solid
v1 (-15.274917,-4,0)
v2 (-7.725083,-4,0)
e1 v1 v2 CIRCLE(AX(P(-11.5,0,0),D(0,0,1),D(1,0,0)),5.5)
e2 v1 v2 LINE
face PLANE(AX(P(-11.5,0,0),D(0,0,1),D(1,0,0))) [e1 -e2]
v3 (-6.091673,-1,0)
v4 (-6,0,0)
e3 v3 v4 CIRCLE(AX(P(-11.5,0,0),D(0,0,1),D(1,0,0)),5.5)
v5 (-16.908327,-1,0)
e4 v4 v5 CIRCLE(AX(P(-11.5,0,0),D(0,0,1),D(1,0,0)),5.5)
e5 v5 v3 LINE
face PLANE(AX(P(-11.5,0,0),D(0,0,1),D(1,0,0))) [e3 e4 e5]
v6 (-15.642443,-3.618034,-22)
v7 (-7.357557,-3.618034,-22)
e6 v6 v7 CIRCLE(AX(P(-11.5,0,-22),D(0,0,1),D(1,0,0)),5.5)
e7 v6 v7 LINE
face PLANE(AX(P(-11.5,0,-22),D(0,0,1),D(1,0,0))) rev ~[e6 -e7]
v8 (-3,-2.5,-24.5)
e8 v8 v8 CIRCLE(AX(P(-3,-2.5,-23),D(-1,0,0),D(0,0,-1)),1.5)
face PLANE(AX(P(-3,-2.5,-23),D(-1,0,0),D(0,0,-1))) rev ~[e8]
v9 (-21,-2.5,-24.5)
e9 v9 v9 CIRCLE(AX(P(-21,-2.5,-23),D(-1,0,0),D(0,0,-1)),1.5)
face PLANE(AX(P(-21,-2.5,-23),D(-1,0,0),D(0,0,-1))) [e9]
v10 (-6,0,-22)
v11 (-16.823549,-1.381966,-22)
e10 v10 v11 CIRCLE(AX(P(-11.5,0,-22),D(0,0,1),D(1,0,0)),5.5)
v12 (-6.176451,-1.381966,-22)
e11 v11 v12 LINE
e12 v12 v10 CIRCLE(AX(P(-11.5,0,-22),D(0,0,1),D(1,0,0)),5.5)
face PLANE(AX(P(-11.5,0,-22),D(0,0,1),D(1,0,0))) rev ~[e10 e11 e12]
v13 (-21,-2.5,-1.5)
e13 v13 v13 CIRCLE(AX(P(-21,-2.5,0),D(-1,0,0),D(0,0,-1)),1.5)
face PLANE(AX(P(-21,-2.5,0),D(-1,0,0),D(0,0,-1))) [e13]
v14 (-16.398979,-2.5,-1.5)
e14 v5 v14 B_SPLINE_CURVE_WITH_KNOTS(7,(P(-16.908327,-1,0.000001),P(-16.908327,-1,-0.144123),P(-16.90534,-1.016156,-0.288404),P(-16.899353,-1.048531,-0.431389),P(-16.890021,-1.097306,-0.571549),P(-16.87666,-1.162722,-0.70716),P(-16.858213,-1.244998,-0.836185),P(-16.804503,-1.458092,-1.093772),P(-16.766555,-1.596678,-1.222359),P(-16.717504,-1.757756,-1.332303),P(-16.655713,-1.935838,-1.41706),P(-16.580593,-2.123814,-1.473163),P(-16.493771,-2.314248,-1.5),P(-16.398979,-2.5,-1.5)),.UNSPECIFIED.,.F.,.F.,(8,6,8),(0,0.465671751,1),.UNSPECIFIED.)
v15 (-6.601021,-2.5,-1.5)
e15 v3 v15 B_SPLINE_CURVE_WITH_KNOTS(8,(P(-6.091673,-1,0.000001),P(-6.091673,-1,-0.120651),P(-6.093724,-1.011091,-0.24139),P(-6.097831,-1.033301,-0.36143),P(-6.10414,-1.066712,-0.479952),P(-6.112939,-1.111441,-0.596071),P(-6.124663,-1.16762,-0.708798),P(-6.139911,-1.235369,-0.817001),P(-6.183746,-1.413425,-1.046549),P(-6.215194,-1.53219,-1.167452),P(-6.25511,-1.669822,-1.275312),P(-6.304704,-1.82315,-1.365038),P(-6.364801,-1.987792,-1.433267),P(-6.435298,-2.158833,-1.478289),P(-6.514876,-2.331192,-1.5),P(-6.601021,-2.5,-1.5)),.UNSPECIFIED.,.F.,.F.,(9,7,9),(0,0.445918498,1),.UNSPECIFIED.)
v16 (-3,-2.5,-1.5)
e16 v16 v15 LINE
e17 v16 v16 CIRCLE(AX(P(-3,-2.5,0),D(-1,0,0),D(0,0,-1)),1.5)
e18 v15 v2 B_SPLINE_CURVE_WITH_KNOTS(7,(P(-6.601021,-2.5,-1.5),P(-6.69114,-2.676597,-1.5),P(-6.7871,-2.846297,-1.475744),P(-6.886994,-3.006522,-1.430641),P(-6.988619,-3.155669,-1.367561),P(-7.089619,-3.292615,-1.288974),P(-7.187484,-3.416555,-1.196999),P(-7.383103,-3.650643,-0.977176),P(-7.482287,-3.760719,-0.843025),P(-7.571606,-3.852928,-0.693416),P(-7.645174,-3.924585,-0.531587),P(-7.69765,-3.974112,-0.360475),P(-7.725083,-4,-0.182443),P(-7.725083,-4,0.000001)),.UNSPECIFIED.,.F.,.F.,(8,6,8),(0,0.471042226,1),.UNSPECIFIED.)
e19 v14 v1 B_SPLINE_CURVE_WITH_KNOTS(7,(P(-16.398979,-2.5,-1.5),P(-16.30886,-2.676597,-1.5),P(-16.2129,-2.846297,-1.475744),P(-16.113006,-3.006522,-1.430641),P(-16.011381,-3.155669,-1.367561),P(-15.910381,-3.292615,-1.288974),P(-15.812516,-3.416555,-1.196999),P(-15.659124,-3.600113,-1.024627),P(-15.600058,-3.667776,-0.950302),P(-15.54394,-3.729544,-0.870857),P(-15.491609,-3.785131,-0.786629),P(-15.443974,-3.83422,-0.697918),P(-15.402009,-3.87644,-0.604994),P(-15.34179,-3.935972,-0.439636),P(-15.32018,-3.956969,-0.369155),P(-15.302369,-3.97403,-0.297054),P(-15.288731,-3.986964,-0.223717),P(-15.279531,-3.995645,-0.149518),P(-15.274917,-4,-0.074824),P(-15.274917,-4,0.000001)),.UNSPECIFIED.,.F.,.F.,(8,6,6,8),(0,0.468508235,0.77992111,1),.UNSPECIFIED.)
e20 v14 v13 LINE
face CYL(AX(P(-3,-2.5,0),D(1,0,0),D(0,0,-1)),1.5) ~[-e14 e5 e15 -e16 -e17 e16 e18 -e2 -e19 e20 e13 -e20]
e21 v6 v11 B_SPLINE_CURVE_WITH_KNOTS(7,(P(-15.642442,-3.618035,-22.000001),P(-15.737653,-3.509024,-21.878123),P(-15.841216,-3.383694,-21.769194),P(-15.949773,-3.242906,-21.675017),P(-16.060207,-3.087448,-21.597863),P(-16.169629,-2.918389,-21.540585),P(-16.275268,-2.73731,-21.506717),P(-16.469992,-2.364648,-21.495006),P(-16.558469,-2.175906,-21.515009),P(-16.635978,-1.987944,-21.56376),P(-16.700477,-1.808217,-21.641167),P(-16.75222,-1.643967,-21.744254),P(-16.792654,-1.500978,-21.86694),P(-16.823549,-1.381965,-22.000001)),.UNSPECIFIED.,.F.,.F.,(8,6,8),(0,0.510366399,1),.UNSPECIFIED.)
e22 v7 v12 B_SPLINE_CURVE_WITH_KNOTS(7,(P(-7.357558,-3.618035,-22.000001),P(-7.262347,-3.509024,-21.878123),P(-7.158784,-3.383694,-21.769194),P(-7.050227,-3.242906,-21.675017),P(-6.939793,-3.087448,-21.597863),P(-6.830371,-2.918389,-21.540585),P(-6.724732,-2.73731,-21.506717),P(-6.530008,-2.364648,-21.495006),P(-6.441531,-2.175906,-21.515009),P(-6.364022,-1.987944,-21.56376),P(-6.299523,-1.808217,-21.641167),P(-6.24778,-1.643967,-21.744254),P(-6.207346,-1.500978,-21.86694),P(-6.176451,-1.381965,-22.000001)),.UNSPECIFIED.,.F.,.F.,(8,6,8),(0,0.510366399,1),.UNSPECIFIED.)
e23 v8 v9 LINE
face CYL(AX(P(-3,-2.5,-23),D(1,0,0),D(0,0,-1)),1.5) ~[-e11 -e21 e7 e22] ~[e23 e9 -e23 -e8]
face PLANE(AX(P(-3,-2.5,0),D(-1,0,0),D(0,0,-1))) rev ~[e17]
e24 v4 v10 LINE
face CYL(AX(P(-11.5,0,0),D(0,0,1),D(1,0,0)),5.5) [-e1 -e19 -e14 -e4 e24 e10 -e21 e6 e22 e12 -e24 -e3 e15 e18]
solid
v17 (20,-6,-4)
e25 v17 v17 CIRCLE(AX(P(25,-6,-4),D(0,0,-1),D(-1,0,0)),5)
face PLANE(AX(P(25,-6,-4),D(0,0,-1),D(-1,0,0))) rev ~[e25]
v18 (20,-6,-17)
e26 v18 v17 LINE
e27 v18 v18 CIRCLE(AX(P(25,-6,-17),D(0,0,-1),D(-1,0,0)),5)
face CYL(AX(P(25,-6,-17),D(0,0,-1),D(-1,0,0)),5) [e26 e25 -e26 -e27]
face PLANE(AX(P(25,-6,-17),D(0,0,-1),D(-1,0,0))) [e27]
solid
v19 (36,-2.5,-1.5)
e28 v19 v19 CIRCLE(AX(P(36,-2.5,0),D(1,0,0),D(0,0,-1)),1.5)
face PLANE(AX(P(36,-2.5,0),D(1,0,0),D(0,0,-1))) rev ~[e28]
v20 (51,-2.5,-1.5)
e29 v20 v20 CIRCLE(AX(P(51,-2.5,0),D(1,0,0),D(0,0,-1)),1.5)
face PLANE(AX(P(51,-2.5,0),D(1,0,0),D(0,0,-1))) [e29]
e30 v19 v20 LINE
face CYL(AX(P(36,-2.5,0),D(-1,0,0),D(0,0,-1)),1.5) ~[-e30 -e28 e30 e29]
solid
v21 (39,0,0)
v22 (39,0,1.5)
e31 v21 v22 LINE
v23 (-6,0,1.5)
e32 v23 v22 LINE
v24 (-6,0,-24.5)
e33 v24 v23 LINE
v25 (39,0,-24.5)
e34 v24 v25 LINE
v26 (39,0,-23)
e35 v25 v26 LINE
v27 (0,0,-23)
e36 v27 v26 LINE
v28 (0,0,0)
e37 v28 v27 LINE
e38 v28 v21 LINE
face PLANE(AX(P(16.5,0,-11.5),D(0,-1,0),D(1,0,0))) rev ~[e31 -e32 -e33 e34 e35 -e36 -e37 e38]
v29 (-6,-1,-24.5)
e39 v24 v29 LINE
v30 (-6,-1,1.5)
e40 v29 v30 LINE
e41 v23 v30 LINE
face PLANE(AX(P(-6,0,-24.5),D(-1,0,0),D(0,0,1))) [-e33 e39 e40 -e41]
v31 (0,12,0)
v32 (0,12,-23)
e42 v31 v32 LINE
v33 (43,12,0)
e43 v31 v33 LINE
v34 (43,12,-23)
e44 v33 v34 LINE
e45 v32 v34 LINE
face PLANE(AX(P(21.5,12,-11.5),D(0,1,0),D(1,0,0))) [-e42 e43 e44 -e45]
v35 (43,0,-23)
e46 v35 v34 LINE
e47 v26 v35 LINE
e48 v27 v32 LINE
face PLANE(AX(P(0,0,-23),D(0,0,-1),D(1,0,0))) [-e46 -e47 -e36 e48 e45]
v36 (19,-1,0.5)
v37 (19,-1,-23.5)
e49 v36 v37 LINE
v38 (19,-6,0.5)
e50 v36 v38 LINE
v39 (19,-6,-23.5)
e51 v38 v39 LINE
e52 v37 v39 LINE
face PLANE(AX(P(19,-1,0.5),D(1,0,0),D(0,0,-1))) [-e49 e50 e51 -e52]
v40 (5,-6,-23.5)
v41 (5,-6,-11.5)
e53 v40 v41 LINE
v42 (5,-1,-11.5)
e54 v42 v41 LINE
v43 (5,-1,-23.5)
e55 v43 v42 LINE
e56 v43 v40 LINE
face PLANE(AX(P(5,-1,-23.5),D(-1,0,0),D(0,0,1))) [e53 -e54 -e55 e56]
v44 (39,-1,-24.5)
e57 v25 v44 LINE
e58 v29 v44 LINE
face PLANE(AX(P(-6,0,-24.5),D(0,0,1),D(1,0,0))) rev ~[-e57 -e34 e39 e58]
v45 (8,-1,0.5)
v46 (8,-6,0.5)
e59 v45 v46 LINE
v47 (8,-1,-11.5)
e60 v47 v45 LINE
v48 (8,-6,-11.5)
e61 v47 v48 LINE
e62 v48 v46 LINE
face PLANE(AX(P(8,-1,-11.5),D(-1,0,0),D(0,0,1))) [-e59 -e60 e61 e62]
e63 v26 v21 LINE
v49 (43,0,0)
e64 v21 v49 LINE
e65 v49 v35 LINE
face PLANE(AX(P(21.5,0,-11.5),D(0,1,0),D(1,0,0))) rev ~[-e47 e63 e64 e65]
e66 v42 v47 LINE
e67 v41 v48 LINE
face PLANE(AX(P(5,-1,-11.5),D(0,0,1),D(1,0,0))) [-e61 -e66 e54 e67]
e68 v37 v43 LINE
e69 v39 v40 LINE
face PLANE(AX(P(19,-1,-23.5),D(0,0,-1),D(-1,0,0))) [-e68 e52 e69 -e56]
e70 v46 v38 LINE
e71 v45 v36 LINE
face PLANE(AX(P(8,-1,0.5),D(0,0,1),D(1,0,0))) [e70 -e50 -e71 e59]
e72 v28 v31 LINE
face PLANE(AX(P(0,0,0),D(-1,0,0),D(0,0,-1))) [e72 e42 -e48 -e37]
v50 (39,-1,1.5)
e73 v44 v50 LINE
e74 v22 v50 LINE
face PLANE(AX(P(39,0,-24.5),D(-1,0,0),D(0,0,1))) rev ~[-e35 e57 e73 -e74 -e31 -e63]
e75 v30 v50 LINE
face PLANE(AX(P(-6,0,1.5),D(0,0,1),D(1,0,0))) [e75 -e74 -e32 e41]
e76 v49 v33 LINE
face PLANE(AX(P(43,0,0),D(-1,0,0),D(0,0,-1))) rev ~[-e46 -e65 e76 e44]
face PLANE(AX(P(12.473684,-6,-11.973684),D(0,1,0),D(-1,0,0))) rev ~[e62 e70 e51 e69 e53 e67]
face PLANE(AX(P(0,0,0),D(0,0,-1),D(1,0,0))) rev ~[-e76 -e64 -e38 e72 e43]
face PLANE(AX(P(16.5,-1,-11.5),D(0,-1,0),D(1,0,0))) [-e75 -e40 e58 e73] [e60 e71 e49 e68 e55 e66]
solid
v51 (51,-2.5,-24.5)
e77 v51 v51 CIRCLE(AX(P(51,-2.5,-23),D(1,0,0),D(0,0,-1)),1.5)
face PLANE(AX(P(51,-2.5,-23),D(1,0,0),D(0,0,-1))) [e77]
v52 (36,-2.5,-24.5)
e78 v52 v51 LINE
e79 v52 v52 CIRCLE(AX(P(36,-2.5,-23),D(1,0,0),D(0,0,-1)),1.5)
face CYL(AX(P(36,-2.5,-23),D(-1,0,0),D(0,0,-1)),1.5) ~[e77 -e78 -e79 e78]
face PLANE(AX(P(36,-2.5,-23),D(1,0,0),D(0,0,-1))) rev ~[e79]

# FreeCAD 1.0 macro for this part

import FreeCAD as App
import Part
import Sketcher
Q = App.Units.Quantity


def add_polygon(sketch, points):
    """Adds a closed chain of lines whose ends are joined by coincident constraints."""
    first, n = sketch.GeometryCount, len(points)
    for a, b in zip(points, points[1:] + points[:1]):
        sketch.addGeometry(Part.LineSegment(App.Vector(*a, 0), App.Vector(*b, 0)), False)
    for i in range(n):
        sketch.addConstraint(Sketcher.Constraint("Coincident", first + i, 2, first + (i + 1) % n, 1))

doc = App.newDocument("Part")
body = doc.addObject("PartDesign::Body", "Body")

# Sketch on XZ plane
sketch1 = doc.addObject("Sketcher::SketchObject", "Sketch")
body.addObject(sketch1)
sketch1.AttachmentSupport = (doc.XZ_Plane, [""])
sketch1.MapMode = "FlatFace"
add_polygon(sketch1, [(0, -23), (0, 0), (43, 0), (43, -23)])  # lines 0-3
sketch1.addConstraint([
    Sketcher.Constraint("Vertical", 0),
    Sketcher.Constraint("Horizontal", 1),
    Sketcher.Constraint("Vertical", 2),
    Sketcher.Constraint("Horizontal", 3),
    Sketcher.Constraint("Coincident", 0, 2, -1, 1),
    Sketcher.Constraint("DistanceX", 1, 1, 1, 2, Q("43 mm")),
    Sketcher.Constraint("DistanceY", 0, 1, 0, 2, Q("23 mm")),
])
pad1 = doc.addObject("PartDesign::Pad", "Pad")
body.addObject(pad1)
pad1.Profile = sketch1
pad1.Length = 12
pad1.Reversed = True

# Sketch on XZ plane
sketch2 = doc.addObject("Sketcher::SketchObject", "Sketch001")
body.addObject(sketch2)
sketch2.AttachmentSupport = (doc.XZ_Plane, [""])
sketch2.MapMode = "FlatFace"
add_polygon(sketch2, [(-6, 2), (-6, -24), (39, -24), (39, 2)])  # lines 0-3
sketch2.addConstraint([
    Sketcher.Constraint("Vertical", 0),
    Sketcher.Constraint("Horizontal", 1),
    Sketcher.Constraint("Vertical", 2),
    Sketcher.Constraint("Horizontal", 3),
    Sketcher.Constraint("DistanceX", 1, 1, 1, 2, Q("45 mm")),
    Sketcher.Constraint("DistanceY", 0, 2, 0, 1, Q("26 mm")),
    Sketcher.Constraint("DistanceX", 0, 2, -1, 1, Q("6 mm")),
    Sketcher.Constraint("DistanceY", 0, 2, -1, 1, Q("24.5 mm")),
])
pad2 = doc.addObject("PartDesign::Pad", "Pad001")
body.addObject(pad2)
pad2.Profile = sketch2
pad2.Length = 1

# Sketch on XZ plane
sketch3 = doc.addObject("Sketcher::SketchObject", "Sketch002")
body.addObject(sketch3)
sketch3.AttachmentSupport = (doc.XZ_Plane, [""])
sketch3.MapMode = "FlatFace"
sketch3.AttachmentOffset = App.Placement(App.Vector(0, 0, 1), App.Rotation())
add_polygon(sketch3, [(19, 0.5), (8, 0.5), (8, -11.5), (5, -11.5), (5, -23.5), (19, -23.5)])  # lines 0-5
sketch3.addConstraint([
    Sketcher.Constraint("Horizontal", 0),
    Sketcher.Constraint("Vertical", 1),
    Sketcher.Constraint("Horizontal", 2),
    Sketcher.Constraint("Vertical", 3),
    Sketcher.Constraint("Horizontal", 4),
    Sketcher.Constraint("Vertical", 5),
    Sketcher.Constraint("Equal", 1, 3),
    Sketcher.Constraint("DistanceX", 0, 2, 0, 1, Q("11 mm")),
    Sketcher.Constraint("DistanceX", 2, 2, 2, 1, Q("3 mm")),
    Sketcher.Constraint("DistanceY", 1, 2, 1, 1, Q("12 mm")),
    Sketcher.Constraint("DistanceX", -1, 1, 0, 2, Q("8 mm")),
    Sketcher.Constraint("DistanceY", -1, 1, 0, 2, Q("0.5 mm")),
])
pad3 = doc.addObject("PartDesign::Pad", "Pad002")
body.addObject(pad3)
pad3.Profile = sketch3
pad3.Length = 5
body2 = doc.addObject("PartDesign::Body", "Body001")

# Sketch on XY plane
sketch4 = doc.addObject("Sketcher::SketchObject", "Sketch003")
body2.addObject(sketch4)
sketch4.AttachmentSupport = (doc.getObject("XY_Plane001"), [""])
sketch4.MapMode = "FlatFace"
sketch4.addGeometry(Part.Circle(App.Vector(-12, 0, 0), App.Vector(0, 0, 1), 6), False)
sketch4.addConstraint([
    Sketcher.Constraint("PointOnObject", 0, 3, -1),
    Sketcher.Constraint("Diameter", 0, Q("11 mm")),
    Sketcher.Constraint("DistanceX", 0, 3, -1, 1, Q("11.5 mm")),
])
pad4 = doc.addObject("PartDesign::Pad", "Pad003")
body2.addObject(pad4)
pad4.Profile = sketch4
pad4.Length = 22
pad4.Reversed = True

# Sketch on YZ plane
sketch5 = doc.addObject("Sketcher::SketchObject", "Sketch004")
body2.addObject(sketch5)
sketch5.AttachmentSupport = (doc.getObject("YZ_Plane001"), [""])
sketch5.MapMode = "FlatFace"
sketch5.AttachmentOffset = App.Placement(App.Vector(0, 0, -6), App.Rotation())
sketch5.addGeometry([
    Part.Circle(App.Vector(-2.5, -23, 0), App.Vector(0, 0, 1), 1.5),
    Part.Circle(App.Vector(-2.5, 0, 0), App.Vector(0, 0, 1), 1.5),
], False)
sketch5.addConstraint([
    Sketcher.Constraint("Equal", 0, 1),
    Sketcher.Constraint("PointOnObject", 1, 3, -1),
    Sketcher.Constraint("Vertical", 0, 3, 1, 3),
    Sketcher.Constraint("Diameter", 0, Q("3 mm")),
    Sketcher.Constraint("DistanceY", 0, 3, -1, 1, Q("23 mm")),
    Sketcher.Constraint("DistanceX", 0, 3, -1, 1, Q("2.5 mm")),
])
pad5 = doc.addObject("PartDesign::Pad", "Pad004")
body2.addObject(pad5)
pad5.Profile = sketch5
pad5.Type = "TwoLengths"
pad5.Length = 15
pad5.Length2 = 3
pad5.Reversed = True
body3 = doc.addObject("PartDesign::Body", "Body002")

# Sketch on XY plane
sketch6 = doc.addObject("Sketcher::SketchObject", "Sketch005")
body3.addObject(sketch6)
sketch6.AttachmentSupport = (doc.getObject("XY_Plane002"), [""])
sketch6.MapMode = "FlatFace"
sketch6.AttachmentOffset = App.Placement(App.Vector(0, 0, -17), App.Rotation())
sketch6.addGeometry(Part.Circle(App.Vector(25, -6, 0), App.Vector(0, 0, 1), 5), False)
sketch6.addConstraint([
    Sketcher.Constraint("Diameter", 0, Q("10 mm")),
    Sketcher.Constraint("DistanceX", -1, 1, 0, 3, Q("25 mm")),
    Sketcher.Constraint("DistanceY", 0, 3, -1, 1, Q("6 mm")),
])
pad6 = doc.addObject("PartDesign::Pad", "Pad005")
body3.addObject(pad6)
pad6.Profile = sketch6
pad6.Length = 13
body4 = doc.addObject("PartDesign::Body", "Body003")

# Sketch on YZ plane
sketch7 = doc.addObject("Sketcher::SketchObject", "Sketch006")
body4.addObject(sketch7)
sketch7.AttachmentSupport = (doc.getObject("YZ_Plane003"), [""])
sketch7.MapMode = "FlatFace"
sketch7.AttachmentOffset = App.Placement(App.Vector(0, 0, 39), App.Rotation())
sketch7.addGeometry(Part.Circle(App.Vector(-2.5, 0, 0), App.Vector(0, 0, 1), 1.5), False)
sketch7.addConstraint([
    Sketcher.Constraint("PointOnObject", 0, 3, -1),
    Sketcher.Constraint("Diameter", 0, Q("3 mm")),
    Sketcher.Constraint("DistanceX", 0, 3, -1, 1, Q("2.5 mm")),
])
pad7 = doc.addObject("PartDesign::Pad", "Pad006")
body4.addObject(pad7)
pad7.Profile = sketch7
pad7.Type = "TwoLengths"
pad7.Length = 12
pad7.Length2 = 3
body5 = doc.addObject("PartDesign::Body", "Body004")

# Sketch on YZ plane
sketch8 = doc.addObject("Sketcher::SketchObject", "Sketch007")
body5.addObject(sketch8)
sketch8.AttachmentSupport = (doc.getObject("YZ_Plane004"), [""])
sketch8.MapMode = "FlatFace"
sketch8.AttachmentOffset = App.Placement(App.Vector(0, 0, 39), App.Rotation())
sketch8.addGeometry(Part.Circle(App.Vector(-2.5, -23, 0), App.Vector(0, 0, 1), 1.5), False)
sketch8.addConstraint([
    Sketcher.Constraint("Diameter", 0, Q("3 mm")),
    Sketcher.Constraint("DistanceY", 0, 3, -1, 1, Q("23 mm")),
    Sketcher.Constraint("DistanceX", 0, 3, -1, 1, Q("2.5 mm")),
])
pad8 = doc.addObject("PartDesign::Pad", "Pad007")
body5.addObject(pad8)
pad8.Profile = sketch8
pad8.Type = "TwoLengths"
pad8.Length = 12
pad8.Length2 = 3

doc.recompute()
